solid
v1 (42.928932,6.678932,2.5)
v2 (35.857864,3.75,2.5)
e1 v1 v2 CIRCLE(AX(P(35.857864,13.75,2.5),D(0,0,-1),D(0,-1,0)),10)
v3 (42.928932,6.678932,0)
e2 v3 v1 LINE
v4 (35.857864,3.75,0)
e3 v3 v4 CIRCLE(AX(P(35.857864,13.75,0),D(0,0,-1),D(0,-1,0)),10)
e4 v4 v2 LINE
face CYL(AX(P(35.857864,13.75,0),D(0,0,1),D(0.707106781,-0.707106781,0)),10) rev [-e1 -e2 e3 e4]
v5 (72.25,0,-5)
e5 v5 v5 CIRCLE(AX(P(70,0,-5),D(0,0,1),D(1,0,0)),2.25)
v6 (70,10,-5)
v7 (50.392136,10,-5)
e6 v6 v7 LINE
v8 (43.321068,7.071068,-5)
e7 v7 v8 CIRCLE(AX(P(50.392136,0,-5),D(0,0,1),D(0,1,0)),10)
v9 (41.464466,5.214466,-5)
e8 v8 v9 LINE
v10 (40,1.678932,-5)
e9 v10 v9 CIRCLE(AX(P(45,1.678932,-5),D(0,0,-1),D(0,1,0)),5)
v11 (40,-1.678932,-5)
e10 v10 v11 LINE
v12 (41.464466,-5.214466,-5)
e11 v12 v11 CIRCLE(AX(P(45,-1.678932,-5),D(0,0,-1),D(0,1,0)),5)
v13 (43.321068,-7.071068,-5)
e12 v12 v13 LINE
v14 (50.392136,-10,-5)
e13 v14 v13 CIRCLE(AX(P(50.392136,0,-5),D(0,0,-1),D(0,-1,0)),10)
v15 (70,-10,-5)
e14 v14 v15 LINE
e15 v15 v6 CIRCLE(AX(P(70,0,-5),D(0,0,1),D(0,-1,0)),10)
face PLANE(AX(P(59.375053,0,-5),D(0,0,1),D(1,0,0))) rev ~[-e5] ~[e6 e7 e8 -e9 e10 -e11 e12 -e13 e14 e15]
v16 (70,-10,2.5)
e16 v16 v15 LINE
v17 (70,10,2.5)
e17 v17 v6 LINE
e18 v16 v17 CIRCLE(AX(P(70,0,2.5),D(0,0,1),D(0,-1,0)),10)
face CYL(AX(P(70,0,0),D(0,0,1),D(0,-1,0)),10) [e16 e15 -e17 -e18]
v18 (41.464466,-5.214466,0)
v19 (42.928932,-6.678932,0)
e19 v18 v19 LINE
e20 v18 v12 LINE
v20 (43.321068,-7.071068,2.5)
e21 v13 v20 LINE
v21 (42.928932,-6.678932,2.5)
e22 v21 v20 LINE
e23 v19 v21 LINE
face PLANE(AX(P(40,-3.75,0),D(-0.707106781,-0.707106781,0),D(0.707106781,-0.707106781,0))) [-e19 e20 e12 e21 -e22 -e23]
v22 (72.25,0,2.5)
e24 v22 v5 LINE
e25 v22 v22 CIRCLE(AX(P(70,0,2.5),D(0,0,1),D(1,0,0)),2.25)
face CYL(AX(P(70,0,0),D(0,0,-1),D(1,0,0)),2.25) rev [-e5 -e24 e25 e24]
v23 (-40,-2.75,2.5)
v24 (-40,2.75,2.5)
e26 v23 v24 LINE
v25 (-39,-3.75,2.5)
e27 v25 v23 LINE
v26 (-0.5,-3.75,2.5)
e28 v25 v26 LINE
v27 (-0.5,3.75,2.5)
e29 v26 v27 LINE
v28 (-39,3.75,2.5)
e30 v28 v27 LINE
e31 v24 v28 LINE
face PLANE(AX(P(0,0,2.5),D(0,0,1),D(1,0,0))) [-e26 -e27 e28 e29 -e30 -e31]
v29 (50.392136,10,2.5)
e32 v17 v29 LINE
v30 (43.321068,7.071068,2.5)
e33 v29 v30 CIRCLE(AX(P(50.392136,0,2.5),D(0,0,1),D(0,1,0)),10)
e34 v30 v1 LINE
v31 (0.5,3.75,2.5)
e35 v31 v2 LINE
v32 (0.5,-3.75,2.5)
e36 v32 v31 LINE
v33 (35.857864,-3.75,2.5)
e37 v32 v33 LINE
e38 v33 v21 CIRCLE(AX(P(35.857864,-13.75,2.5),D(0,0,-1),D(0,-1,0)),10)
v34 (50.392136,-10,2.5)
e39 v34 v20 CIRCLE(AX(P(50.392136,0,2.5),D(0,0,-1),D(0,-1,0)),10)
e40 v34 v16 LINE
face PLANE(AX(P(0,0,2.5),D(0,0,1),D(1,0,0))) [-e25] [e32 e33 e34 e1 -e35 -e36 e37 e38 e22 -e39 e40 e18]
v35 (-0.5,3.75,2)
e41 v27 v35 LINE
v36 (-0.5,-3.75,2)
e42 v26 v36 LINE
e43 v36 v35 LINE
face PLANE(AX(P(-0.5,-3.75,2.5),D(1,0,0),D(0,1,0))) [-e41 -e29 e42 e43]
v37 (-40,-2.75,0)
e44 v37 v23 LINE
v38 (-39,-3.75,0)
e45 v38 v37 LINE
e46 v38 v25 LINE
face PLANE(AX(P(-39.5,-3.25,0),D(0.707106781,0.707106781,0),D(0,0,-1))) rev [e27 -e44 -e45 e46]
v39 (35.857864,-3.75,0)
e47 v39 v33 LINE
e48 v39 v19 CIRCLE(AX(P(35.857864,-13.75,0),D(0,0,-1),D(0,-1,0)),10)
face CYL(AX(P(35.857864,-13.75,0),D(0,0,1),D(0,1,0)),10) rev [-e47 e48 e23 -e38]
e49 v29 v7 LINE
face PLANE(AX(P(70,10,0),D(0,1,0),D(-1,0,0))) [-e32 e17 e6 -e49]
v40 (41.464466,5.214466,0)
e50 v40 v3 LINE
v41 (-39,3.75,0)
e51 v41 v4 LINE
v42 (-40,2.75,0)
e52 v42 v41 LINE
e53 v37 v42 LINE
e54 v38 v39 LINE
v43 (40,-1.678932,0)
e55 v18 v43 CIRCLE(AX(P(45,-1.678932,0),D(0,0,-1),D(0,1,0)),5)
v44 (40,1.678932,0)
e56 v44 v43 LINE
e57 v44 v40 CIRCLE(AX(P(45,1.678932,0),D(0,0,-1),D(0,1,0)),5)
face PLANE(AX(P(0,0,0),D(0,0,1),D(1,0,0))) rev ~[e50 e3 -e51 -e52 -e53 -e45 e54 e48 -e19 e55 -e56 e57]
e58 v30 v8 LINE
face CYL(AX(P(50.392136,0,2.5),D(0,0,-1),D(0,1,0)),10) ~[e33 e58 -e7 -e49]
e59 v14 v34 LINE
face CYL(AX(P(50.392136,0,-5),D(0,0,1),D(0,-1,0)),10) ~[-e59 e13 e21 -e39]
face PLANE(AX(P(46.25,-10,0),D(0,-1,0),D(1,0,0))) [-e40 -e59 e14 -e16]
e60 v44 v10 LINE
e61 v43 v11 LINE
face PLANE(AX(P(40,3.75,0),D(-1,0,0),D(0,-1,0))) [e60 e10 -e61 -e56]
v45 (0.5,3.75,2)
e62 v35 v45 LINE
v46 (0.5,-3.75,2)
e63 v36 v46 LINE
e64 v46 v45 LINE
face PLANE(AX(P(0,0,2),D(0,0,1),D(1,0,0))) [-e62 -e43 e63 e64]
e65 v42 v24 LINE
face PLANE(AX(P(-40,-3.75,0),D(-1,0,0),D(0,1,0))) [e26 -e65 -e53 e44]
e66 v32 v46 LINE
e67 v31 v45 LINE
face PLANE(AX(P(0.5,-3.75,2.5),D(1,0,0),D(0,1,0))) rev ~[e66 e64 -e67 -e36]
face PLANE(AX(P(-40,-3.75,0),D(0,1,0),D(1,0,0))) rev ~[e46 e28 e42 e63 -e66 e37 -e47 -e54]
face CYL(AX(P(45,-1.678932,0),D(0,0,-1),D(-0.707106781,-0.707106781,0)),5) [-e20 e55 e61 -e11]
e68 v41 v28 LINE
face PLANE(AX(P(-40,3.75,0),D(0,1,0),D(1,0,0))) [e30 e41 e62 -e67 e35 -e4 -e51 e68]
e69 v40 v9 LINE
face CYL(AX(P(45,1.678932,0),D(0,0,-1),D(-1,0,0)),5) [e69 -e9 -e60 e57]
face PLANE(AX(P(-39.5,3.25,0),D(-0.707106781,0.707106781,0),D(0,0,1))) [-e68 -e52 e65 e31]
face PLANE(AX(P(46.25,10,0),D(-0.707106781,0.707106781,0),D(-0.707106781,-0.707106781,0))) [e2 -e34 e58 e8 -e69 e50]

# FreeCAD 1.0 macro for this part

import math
import FreeCAD as App
import Part
import Sketcher


def edges_at(feature, points):
    """Names of the edges that pass closest to the given points."""
    edges = feature.Shape.Edges
    near = lambda p: min(range(len(edges)), key=lambda i: edges[i].distToShape(Part.Vertex(*p))[0])
    return sorted({f"Edge{near(p) + 1}" for p in points})

doc = App.newDocument("Part")
body = doc.addObject("PartDesign::Body", "Body")

# Sketch on XY plane
sketch1 = doc.addObject("Sketcher::SketchObject", "Sketch")
body.addObject(sketch1)
sketch1.AttachmentSupport = (doc.XY_Plane, [""])
sketch1.MapMode = "FlatFace"
sketch1.addGeometry(Part.LineSegment(App.Vector(-40, 3.8, 0), App.Vector(-40, -3.8, 0)), False)
sketch1.addGeometry(Part.LineSegment(App.Vector(-40, -3.8, 0), App.Vector(40, -3.8, 0)), False)
sketch1.addGeometry(Part.LineSegment(App.Vector(40, -3.8, 0), App.Vector(46.2, -10, 0)), False)
sketch1.addGeometry(Part.LineSegment(App.Vector(46.2, -10, 0), App.Vector(70, -10, 0)), False)
sketch1.addGeometry(Part.ArcOfCircle(Part.Circle(App.Vector(70, 0, 0), App.Vector(0, 0, 1), 10), math.radians(-90), math.radians(90)), False)
sketch1.addGeometry(Part.LineSegment(App.Vector(70, 10, 0), App.Vector(46.2, 10, 0)), False)
sketch1.addGeometry(Part.LineSegment(App.Vector(46.2, 10, 0), App.Vector(40, 3.8, 0)), False)
sketch1.addGeometry(Part.LineSegment(App.Vector(40, 3.8, 0), App.Vector(-40, 3.8, 0)), False)
sketch1.addGeometry(Part.Circle(App.Vector(70, 0, 0), App.Vector(0, 0, 1), 2.2), False)
sketch1.addConstraint(Sketcher.Constraint("Coincident", 0, 2, 1, 1))
sketch1.addConstraint(Sketcher.Constraint("Coincident", 1, 2, 2, 1))
sketch1.addConstraint(Sketcher.Constraint("Coincident", 2, 2, 3, 1))
sketch1.addConstraint(Sketcher.Constraint("Tangent", 3, 2, 4, 1))
sketch1.addConstraint(Sketcher.Constraint("Tangent", 4, 2, 5, 1))
sketch1.addConstraint(Sketcher.Constraint("Coincident", 5, 2, 6, 1))
sketch1.addConstraint(Sketcher.Constraint("Coincident", 6, 2, 7, 1))
sketch1.addConstraint(Sketcher.Constraint("Coincident", 7, 2, 0, 1))
sketch1.addConstraint(Sketcher.Constraint("Vertical", 0))
sketch1.addConstraint(Sketcher.Constraint("Horizontal", 1))
sketch1.addConstraint(Sketcher.Constraint("Horizontal", 3))
sketch1.addConstraint(Sketcher.Constraint("Horizontal", 5))
sketch1.addConstraint(Sketcher.Constraint("Horizontal", 7))
sketch1.addConstraint(Sketcher.Constraint("Coincident", 8, 3, 4, 3))
sketch1.addConstraint(Sketcher.Constraint("Symmetric", 0, 2, 6, 2, -1, 1))
sketch1.addConstraint(Sketcher.Constraint("Symmetric", 2, 2, 5, 2, -1))
sketch1.addConstraint(Sketcher.Constraint("Perpendicular", 2, 6))
sketch1.addConstraint(Sketcher.Constraint("Vertical", 1, 2, 6, 2))
sketch1.addConstraint(Sketcher.Constraint("Radius", 4, 10.0))
sketch1.addConstraint(Sketcher.Constraint("Diameter", 8, 4.5))
sketch1.addConstraint(Sketcher.Constraint("DistanceX", 1, 1, 1, 2, 80.0))
sketch1.addConstraint(Sketcher.Constraint("DistanceY", 0, 2, 0, 1, 7.5))
sketch1.addConstraint(Sketcher.Constraint("DistanceX", -1, 1, 4, 3, 70.0))
pad1 = doc.addObject("PartDesign::Pad", "Pad")
body.addObject(pad1)
pad1.Profile = sketch1
pad1.Length = 2.5

# Sketch on XY plane
sketch2 = doc.addObject("Sketcher::SketchObject", "Sketch001")
body.addObject(sketch2)
sketch2.AttachmentSupport = (doc.XY_Plane, [""])
sketch2.MapMode = "FlatFace"
sketch2.addGeometry(Part.LineSegment(App.Vector(46.2, 10, 0), App.Vector(40, 3.8, 0)), False)
sketch2.addGeometry(Part.LineSegment(App.Vector(40, 3.8, 0), App.Vector(40, -3.8, 0)), False)
sketch2.addGeometry(Part.LineSegment(App.Vector(40, -3.8, 0), App.Vector(46.2, -10, 0)), False)
sketch2.addGeometry(Part.LineSegment(App.Vector(46.2, -10, 0), App.Vector(70, -10, 0)), False)
sketch2.addGeometry(Part.ArcOfCircle(Part.Circle(App.Vector(70, 0, 0), App.Vector(0, 0, 1), 10), math.radians(-90), math.radians(90)), False)
sketch2.addGeometry(Part.LineSegment(App.Vector(70, 10, 0), App.Vector(46.2, 10, 0)), False)
sketch2.addGeometry(Part.Circle(App.Vector(70, 0, 0), App.Vector(0, 0, 1), 2.2), False)
sketch2.addConstraint(Sketcher.Constraint("Coincident", 0, 2, 1, 1))
sketch2.addConstraint(Sketcher.Constraint("Coincident", 1, 2, 2, 1))
sketch2.addConstraint(Sketcher.Constraint("Coincident", 2, 2, 3, 1))
sketch2.addConstraint(Sketcher.Constraint("Tangent", 3, 2, 4, 1))
sketch2.addConstraint(Sketcher.Constraint("Tangent", 4, 2, 5, 1))
sketch2.addConstraint(Sketcher.Constraint("Coincident", 5, 2, 0, 1))
sketch2.addConstraint(Sketcher.Constraint("Vertical", 1))
sketch2.addConstraint(Sketcher.Constraint("Horizontal", 3))
sketch2.addConstraint(Sketcher.Constraint("Horizontal", 5))
sketch2.addConstraint(Sketcher.Constraint("Coincident", 6, 3, 4, 3))
sketch2.addConstraint(Sketcher.Constraint("Symmetric", 2, 2, 5, 2, -1))
sketch2.addConstraint(Sketcher.Constraint("Perpendicular", 0, 2))
sketch2.addConstraint(Sketcher.Constraint("Equal", 0, 2))
sketch2.addConstraint(Sketcher.Constraint("Radius", 4, 10.0))
sketch2.addConstraint(Sketcher.Constraint("Diameter", 6, 4.5))
sketch2.addConstraint(Sketcher.Constraint("DistanceY", 1, 2, 1, 1, 7.5))
sketch2.addConstraint(Sketcher.Constraint("DistanceX", -1, 1, 4, 3, 70.0))
sketch2.addConstraint(Sketcher.Constraint("DistanceX", -1, 1, 0, 2, 40.0))
pad2 = doc.addObject("PartDesign::Pad", "Pad001")
body.addObject(pad2)
pad2.Profile = sketch2
pad2.Length = 5
pad2.Reversed = True
doc.recompute()

chamfer = doc.addObject("PartDesign::Chamfer", "Chamfer")
body.addObject(chamfer)
chamfer.Base = (pad2, edges_at(pad2, [(-40, -3.75, 1.25), (-40, 3.75, 1.25)]))
chamfer.Size = 1
doc.recompute()

fillet = doc.addObject("PartDesign::Fillet", "Fillet")
body.addObject(fillet)
fillet.Base = (chamfer, edges_at(chamfer, [
    (40, -3.75, 1.25),
    (46.25, -10, -1.25),
    (46.25, 10, -1.25),
    (40, 3.75, 1.25),
]))
fillet.Radius = 10
doc.recompute()

fillet2 = doc.addObject("PartDesign::Fillet", "Fillet001")
body.addObject(fillet2)
fillet2.Base = (fillet, edges_at(fillet, [(40, -3.75, -2.5), (40, 3.75, -2.5)]))
fillet2.Radius = 5

# Sketch on XY plane
sketch3 = doc.addObject("Sketcher::SketchObject", "Sketch002")
body.addObject(sketch3)
sketch3.AttachmentSupport = (doc.XY_Plane, [""])
sketch3.MapMode = "FlatFace"
sketch3.AttachmentOffset = App.Placement(App.Vector(0, 0, 2.5), App.Rotation())
sketch3.addGeometry(Part.LineSegment(App.Vector(-0.5, 3.8, 0), App.Vector(-0.5, -3.8, 0)), False)
sketch3.addGeometry(Part.LineSegment(App.Vector(-0.5, -3.8, 0), App.Vector(0.5, -3.8, 0)), False)
sketch3.addGeometry(Part.LineSegment(App.Vector(0.5, -3.8, 0), App.Vector(0.5, 3.8, 0)), False)
sketch3.addGeometry(Part.LineSegment(App.Vector(0.5, 3.8, 0), App.Vector(-0.5, 3.8, 0)), False)
sketch3.addConstraint(Sketcher.Constraint("Coincident", 0, 2, 1, 1))
sketch3.addConstraint(Sketcher.Constraint("Coincident", 1, 2, 2, 1))
sketch3.addConstraint(Sketcher.Constraint("Coincident", 2, 2, 3, 1))
sketch3.addConstraint(Sketcher.Constraint("Coincident", 3, 2, 0, 1))
sketch3.addConstraint(Sketcher.Constraint("Vertical", 0))
sketch3.addConstraint(Sketcher.Constraint("Horizontal", 1))
sketch3.addConstraint(Sketcher.Constraint("Vertical", 2))
sketch3.addConstraint(Sketcher.Constraint("Horizontal", 3))
sketch3.addConstraint(Sketcher.Constraint("Symmetric", 0, 2, 2, 2, -1, 1))
sketch3.addConstraint(Sketcher.Constraint("DistanceX", 1, 1, 1, 2, 1.0))
sketch3.addConstraint(Sketcher.Constraint("DistanceY", 0, 2, 0, 1, 7.5))
pocket1 = doc.addObject("PartDesign::Pocket", "Pocket")
body.addObject(pocket1)
pocket1.Profile = sketch3
pocket1.Length = 0.5

doc.recompute()
